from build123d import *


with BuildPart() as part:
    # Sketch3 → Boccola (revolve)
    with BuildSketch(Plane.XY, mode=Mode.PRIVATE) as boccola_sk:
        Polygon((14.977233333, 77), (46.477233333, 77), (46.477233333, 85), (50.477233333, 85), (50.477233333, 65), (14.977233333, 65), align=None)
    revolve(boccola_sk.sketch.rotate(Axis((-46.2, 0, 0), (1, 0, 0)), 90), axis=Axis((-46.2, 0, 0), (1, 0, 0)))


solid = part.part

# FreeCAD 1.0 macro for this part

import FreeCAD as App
import Part
import Sketcher
Q = App.Units.Quantity


def add_polygon(sketch, points):
    """Adds a closed chain of lines whose ends are joined by coincident constraints."""
    first, n = sketch.GeometryCount, len(points)
    for a, b in zip(points, points[1:] + points[:1]):
        sketch.addGeometry(Part.LineSegment(App.Vector(*a, 0), App.Vector(*b, 0)), False)
    for i in range(n):
        sketch.addConstraint(Sketcher.Constraint("Coincident", first + i, 2, first + (i + 1) % n, 1))

doc = App.newDocument("Part")
params = doc.addObject("Spreadsheet::Sheet", "Params")
for row, (alias, value) in enumerate([
    ("sketch1_width", "4 mm"),
    ("sketch1_height", "12 mm"),
    ("sketch1_height2", "20 mm"),
    ("sketch1_width2", "31.5 mm"),
    ("revolution_angle", "360 deg"),
], start=1):
    params.set(f"A{row}", alias)
    params.set(f"B{row}", "=" + value)
    params.setAlias(f"B{row}", alias)

body = doc.addObject("PartDesign::Body", "Body")

sketch1 = doc.addObject("Sketcher::SketchObject", "Sketch")
body.addObject(sketch1)
sketch1.AttachmentSupport = (doc.XY_Plane, [""])
sketch1.MapMode = "FlatFace"
add_polygon(sketch1, [(46.5, 77), (15, 77), (15, 65), (50.5, 65), (50.5, 85), (46.5, 85)])
sketch1.addConstraint(Sketcher.Constraint("Horizontal", 0))
sketch1.addConstraint(Sketcher.Constraint("Vertical", 1))
sketch1.addConstraint(Sketcher.Constraint("Horizontal", 2))
sketch1.addConstraint(Sketcher.Constraint("Vertical", 3))
sketch1.addConstraint(Sketcher.Constraint("Horizontal", 4))
sketch1.addConstraint(Sketcher.Constraint("Vertical", 5))
sketch1.addConstraint(Sketcher.Constraint("DistanceX", 4, 2, 4, 1, Q("4 mm")))
sketch1.addConstraint(Sketcher.Constraint("DistanceY", 1, 2, 1, 1, Q("12 mm")))
sketch1.addConstraint(Sketcher.Constraint("DistanceY", 3, 1, 3, 2, Q("20 mm")))
sketch1.addConstraint(Sketcher.Constraint("DistanceX", 0, 2, 0, 1, Q("31.5 mm")))
sketch1.addConstraint(Sketcher.Constraint("DistanceY", -1, 1, 0, 2, Q("77 mm")))
sketch1.addConstraint(Sketcher.Constraint("DistanceX", -1, 1, 0, 2, Q("14.977233 mm")))
sketch1.setExpression("Constraints[12]", "Params.sketch1_width")
sketch1.setExpression("Constraints[13]", "Params.sketch1_height")
sketch1.setExpression("Constraints[14]", "Params.sketch1_height2")
sketch1.setExpression("Constraints[15]", "Params.sketch1_width2")
revolution = doc.addObject("PartDesign::Revolution", "Revolution")
body.addObject(revolution)
revolution.Profile = sketch1
revolution.ReferenceAxis = (sketch1, ["H_Axis"])
revolution.setExpression("Angle", "Params.revolution_angle")

doc.recompute()
